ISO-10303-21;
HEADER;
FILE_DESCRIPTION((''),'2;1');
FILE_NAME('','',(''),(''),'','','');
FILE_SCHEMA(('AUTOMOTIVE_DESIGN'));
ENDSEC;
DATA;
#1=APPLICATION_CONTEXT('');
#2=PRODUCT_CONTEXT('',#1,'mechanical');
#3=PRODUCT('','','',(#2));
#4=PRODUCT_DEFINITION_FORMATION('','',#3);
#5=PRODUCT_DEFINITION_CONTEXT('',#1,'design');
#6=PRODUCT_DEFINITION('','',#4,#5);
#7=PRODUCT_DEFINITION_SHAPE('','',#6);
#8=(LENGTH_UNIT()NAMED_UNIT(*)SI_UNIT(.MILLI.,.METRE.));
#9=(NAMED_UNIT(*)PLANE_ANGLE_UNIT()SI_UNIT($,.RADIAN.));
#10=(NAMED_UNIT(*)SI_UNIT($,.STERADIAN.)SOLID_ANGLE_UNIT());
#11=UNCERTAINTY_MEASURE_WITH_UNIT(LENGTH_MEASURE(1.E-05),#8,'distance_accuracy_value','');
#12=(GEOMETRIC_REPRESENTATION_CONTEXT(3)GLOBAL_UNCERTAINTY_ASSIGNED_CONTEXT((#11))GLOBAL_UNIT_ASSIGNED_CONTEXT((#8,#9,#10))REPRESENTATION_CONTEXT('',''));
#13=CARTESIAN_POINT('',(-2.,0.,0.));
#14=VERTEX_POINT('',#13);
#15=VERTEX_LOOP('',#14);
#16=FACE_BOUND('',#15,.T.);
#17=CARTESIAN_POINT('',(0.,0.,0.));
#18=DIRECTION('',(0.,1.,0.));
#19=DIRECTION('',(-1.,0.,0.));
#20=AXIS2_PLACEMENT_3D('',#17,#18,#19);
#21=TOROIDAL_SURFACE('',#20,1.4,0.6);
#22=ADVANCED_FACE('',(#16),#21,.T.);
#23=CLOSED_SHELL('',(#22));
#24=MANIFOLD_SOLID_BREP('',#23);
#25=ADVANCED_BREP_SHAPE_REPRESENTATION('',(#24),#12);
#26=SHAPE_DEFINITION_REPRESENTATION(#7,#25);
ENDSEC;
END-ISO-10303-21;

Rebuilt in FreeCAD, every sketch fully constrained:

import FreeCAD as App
import Part
import Sketcher

V = App.Vector
Q = App.Units.Quantity

doc = App.newDocument("Part")
body = doc.addObject("PartDesign::Body", "Body")

sketch1 = doc.addObject("Sketcher::SketchObject", "Sketch")
body.addObject(sketch1)
sketch1.AttachmentSupport = (doc.XY_Plane, [""])
sketch1.MapMode = "FlatFace"
sketch1.addGeometry(Part.Circle(V(1.4, 0, 0), V(0, 0, 1), 0.6), False)
sketch1.addConstraint([
    Sketcher.Constraint("PointOnObject", 0, 3, -1),
    Sketcher.Constraint("Diameter", 0, Q("1.2 mm")),
    Sketcher.Constraint("DistanceX", -1, 1, 0, 3, Q("1.4 mm")),
])
revolution = doc.addObject("PartDesign::Revolution", "Revolution")
body.addObject(revolution)
revolution.Profile = sketch1
revolution.ReferenceAxis = (sketch1, ["V_Axis"])
revolution.Angle = 360

doc.recompute()
